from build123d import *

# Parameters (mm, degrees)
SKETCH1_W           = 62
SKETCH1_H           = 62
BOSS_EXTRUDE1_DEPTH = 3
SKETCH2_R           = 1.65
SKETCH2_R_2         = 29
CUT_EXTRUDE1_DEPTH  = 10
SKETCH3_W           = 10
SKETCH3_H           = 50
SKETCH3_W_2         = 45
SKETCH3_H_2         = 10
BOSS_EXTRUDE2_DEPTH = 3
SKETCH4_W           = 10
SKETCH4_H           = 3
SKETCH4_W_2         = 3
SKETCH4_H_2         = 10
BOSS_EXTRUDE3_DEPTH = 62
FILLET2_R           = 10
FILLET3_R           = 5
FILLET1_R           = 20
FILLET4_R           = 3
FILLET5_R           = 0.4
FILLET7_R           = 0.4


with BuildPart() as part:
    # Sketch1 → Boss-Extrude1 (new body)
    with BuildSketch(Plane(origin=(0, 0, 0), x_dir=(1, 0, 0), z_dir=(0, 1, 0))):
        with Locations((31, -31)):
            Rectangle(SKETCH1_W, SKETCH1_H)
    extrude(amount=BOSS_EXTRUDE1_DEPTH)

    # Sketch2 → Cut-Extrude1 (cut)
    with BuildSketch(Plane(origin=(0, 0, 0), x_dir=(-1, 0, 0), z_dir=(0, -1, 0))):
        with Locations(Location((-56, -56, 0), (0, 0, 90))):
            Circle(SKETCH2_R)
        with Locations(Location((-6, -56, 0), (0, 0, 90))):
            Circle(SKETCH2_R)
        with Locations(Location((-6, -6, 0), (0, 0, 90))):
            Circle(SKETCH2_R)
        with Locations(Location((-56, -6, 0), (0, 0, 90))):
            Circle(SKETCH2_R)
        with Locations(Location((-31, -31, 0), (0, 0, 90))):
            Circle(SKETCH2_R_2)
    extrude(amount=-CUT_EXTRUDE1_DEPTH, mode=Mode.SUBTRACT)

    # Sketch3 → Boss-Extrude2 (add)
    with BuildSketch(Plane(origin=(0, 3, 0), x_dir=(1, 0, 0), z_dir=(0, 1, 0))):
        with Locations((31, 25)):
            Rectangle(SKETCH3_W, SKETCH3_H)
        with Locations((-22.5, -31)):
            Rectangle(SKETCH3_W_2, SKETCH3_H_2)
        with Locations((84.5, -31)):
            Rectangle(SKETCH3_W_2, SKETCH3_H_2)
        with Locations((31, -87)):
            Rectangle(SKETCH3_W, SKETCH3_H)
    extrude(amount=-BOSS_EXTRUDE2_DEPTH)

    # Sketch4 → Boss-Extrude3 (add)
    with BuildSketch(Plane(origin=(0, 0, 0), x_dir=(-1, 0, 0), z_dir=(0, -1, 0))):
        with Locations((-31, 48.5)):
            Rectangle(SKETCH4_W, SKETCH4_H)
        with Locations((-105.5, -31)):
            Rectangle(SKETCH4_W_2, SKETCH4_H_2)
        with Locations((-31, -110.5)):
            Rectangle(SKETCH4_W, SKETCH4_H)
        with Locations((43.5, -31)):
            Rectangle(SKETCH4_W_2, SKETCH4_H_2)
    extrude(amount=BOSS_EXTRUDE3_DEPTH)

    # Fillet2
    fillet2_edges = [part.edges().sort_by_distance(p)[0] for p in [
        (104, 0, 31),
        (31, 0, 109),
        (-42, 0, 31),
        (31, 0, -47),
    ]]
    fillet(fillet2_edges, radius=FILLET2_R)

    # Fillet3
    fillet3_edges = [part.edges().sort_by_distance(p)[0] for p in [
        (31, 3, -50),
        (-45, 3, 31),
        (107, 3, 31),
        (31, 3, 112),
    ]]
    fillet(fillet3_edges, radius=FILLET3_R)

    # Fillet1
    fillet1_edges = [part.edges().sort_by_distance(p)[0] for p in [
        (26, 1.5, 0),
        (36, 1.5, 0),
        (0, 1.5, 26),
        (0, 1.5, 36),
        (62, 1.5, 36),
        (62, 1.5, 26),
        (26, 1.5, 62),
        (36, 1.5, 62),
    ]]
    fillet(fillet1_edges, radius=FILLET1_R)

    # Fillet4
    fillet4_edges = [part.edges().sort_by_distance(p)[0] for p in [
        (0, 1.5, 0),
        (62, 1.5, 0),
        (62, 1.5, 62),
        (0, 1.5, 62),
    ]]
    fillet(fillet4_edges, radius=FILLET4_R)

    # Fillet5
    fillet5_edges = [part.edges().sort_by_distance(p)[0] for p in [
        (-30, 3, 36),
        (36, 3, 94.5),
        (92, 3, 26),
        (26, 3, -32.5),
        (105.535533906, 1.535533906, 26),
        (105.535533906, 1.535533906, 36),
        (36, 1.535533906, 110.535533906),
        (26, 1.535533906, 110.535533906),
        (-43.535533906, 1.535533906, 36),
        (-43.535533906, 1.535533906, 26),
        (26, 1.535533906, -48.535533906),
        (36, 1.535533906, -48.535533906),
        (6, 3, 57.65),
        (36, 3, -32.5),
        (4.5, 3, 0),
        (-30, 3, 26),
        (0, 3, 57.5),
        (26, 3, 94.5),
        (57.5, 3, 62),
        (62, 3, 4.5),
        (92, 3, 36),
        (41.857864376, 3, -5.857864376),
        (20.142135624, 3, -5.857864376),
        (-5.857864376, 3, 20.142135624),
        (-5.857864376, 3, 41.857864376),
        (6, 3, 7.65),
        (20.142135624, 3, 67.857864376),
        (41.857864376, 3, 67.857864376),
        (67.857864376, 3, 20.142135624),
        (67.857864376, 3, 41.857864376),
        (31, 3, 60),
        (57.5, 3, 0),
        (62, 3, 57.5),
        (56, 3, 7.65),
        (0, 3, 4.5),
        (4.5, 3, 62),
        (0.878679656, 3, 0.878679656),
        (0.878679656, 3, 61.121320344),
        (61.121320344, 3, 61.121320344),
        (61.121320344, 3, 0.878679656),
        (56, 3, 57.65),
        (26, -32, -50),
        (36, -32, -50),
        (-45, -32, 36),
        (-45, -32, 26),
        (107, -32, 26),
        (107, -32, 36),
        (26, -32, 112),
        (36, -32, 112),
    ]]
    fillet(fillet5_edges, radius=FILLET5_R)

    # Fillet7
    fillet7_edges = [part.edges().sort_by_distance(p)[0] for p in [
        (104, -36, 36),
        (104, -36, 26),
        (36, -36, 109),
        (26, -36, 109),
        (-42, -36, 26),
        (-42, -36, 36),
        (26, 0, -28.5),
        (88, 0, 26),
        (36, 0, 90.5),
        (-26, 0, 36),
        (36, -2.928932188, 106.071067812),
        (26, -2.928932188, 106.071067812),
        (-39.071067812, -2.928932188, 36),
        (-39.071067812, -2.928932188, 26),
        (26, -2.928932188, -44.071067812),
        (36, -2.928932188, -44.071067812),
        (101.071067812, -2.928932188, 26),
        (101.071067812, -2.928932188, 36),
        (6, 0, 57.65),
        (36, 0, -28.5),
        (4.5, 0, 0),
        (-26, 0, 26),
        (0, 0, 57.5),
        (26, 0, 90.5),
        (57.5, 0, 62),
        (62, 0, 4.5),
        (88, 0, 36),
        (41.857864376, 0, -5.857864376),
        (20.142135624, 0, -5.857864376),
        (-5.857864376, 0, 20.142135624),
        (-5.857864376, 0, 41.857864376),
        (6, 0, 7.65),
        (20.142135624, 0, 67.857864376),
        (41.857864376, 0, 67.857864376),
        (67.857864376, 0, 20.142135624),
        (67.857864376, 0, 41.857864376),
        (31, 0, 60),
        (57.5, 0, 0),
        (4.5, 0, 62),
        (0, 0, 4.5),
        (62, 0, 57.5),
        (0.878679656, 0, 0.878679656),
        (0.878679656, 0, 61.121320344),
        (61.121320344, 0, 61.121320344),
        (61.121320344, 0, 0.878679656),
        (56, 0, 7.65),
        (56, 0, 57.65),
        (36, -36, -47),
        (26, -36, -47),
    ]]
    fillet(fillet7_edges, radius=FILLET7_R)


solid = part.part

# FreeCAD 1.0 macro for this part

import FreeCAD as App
import Part
import Sketcher
from FreeCAD import Vector
Q = App.Units.Quantity


def edges_at(feature, points):
    """Names of the edges that pass closest to the given points."""
    edges = feature.Shape.Edges
    near = lambda p: min(range(len(edges)), key=lambda i: edges[i].distToShape(Part.Vertex(*p))[0])
    return sorted({f"Edge{near(p) + 1}" for p in points})

doc = App.newDocument("Part")
body = doc.addObject("PartDesign::Body", "Body")

sketch1 = doc.addObject("Sketcher::SketchObject", "Sketch")
body.addObject(sketch1)
sketch1.AttachmentSupport = (doc.XZ_Plane, [""])
sketch1.MapMode = "FlatFace"
sketch1.addGeometry(Part.LineSegment(Vector(0, 0, 0), Vector(0, 62, 0)), False)
sketch1.addGeometry(Part.LineSegment(Vector(0, 62, 0), Vector(62, 62, 0)), False)
sketch1.addGeometry(Part.LineSegment(Vector(62, 62, 0), Vector(62, 0, 0)), False)
sketch1.addGeometry(Part.LineSegment(Vector(62, 0, 0), Vector(0, 0, 0)), False)
sketch1.addConstraint(Sketcher.Constraint("Coincident", 0, 2, 1, 1))
sketch1.addConstraint(Sketcher.Constraint("Coincident", 1, 2, 2, 1))
sketch1.addConstraint(Sketcher.Constraint("Coincident", 2, 2, 3, 1))
sketch1.addConstraint(Sketcher.Constraint("Coincident", 3, 2, 0, 1))
sketch1.addConstraint(Sketcher.Constraint("Vertical", 0))
sketch1.addConstraint(Sketcher.Constraint("Horizontal", 1))
sketch1.addConstraint(Sketcher.Constraint("Vertical", 2))
sketch1.addConstraint(Sketcher.Constraint("Horizontal", 3))
sketch1.addConstraint(Sketcher.Constraint("Coincident", 3, 2, -1, 1))
sketch1.addConstraint(Sketcher.Constraint("Equal", 3, 0))
sketch1.addConstraint(Sketcher.Constraint("DistanceX", 1, 1, 1, 2, Q("62 mm")))
pad1 = doc.addObject("PartDesign::Pad", "Pad")
body.addObject(pad1)
pad1.Profile = sketch1
pad1.Length = 3
pad1.Reversed = True

sketch2 = doc.addObject("Sketcher::SketchObject", "Sketch001")
body.addObject(sketch2)
sketch2.AttachmentSupport = (doc.XZ_Plane, [""])
sketch2.MapMode = "FlatFace"
sketch2.addGeometry(Part.Circle(Vector(56, 56, 0), Vector(0, 0, 1), 1.6), False)
sketch2.addGeometry(Part.Circle(Vector(6, 56, 0), Vector(0, 0, 1), 1.6), False)
sketch2.addGeometry(Part.Circle(Vector(6, 6, 0), Vector(0, 0, 1), 1.6), False)
sketch2.addGeometry(Part.Circle(Vector(56, 6, 0), Vector(0, 0, 1), 1.6), False)
sketch2.addGeometry(Part.Circle(Vector(31, 31, 0), Vector(0, 0, 1), 29), False)
sketch2.addConstraint(Sketcher.Constraint("Equal", 0, 1))
sketch2.addConstraint(Sketcher.Constraint("Equal", 1, 2))
sketch2.addConstraint(Sketcher.Constraint("Equal", 2, 3))
sketch2.addConstraint(Sketcher.Constraint("Horizontal", 0, 3, 1, 3))
sketch2.addConstraint(Sketcher.Constraint("Horizontal", 2, 3, 3, 3))
sketch2.addConstraint(Sketcher.Constraint("Vertical", 1, 3, 2, 3))
sketch2.addConstraint(Sketcher.Constraint("Vertical", 0, 3, 3, 3))
sketch2.addConstraint(Sketcher.Constraint("Diameter", 4, Q("58 mm")))
sketch2.addConstraint(Sketcher.Constraint("Diameter", 0, Q("3.3 mm")))
sketch2.addConstraint(Sketcher.Constraint("DistanceX", -1, 1, 0, 3, Q("56 mm")))
sketch2.addConstraint(Sketcher.Constraint("DistanceY", -1, 1, 0, 3, Q("56 mm")))
sketch2.addConstraint(Sketcher.Constraint("DistanceX", -1, 1, 1, 3, Q("6 mm")))
sketch2.addConstraint(Sketcher.Constraint("DistanceY", -1, 1, 2, 3, Q("6 mm")))
sketch2.addConstraint(Sketcher.Constraint("DistanceX", -1, 1, 4, 3, Q("31 mm")))
sketch2.addConstraint(Sketcher.Constraint("DistanceY", -1, 1, 4, 3, Q("31 mm")))
pocket1 = doc.addObject("PartDesign::Pocket", "Pocket")
body.addObject(pocket1)
pocket1.Profile = sketch2
pocket1.Length = 10

sketch3 = doc.addObject("Sketcher::SketchObject", "Sketch002")
body.addObject(sketch3)
sketch3.AttachmentSupport = (doc.XZ_Plane, [""])
sketch3.MapMode = "FlatFace"
sketch3.AttachmentOffset = App.Placement(Vector(0, 0, -3), App.Rotation())
sketch3.addGeometry(Part.LineSegment(Vector(26, -50, 0), Vector(26, 0, 0)), False)
sketch3.addGeometry(Part.LineSegment(Vector(26, 0, 0), Vector(36, 0, 0)), False)
sketch3.addGeometry(Part.LineSegment(Vector(36, 0, 0), Vector(36, -50, 0)), False)
sketch3.addGeometry(Part.LineSegment(Vector(36, -50, 0), Vector(26, -50, 0)), False)
sketch3.addGeometry(Part.LineSegment(Vector(-45, 26, 0), Vector(-45, 36, 0)), False)
sketch3.addGeometry(Part.LineSegment(Vector(-45, 36, 0), Vector(0, 36, 0)), False)
sketch3.addGeometry(Part.LineSegment(Vector(0, 36, 0), Vector(0, 26, 0)), False)
sketch3.addGeometry(Part.LineSegment(Vector(0, 26, 0), Vector(-45, 26, 0)), False)
sketch3.addGeometry(Part.LineSegment(Vector(62, 26, 0), Vector(62, 36, 0)), False)
sketch3.addGeometry(Part.LineSegment(Vector(62, 36, 0), Vector(107, 36, 0)), False)
sketch3.addGeometry(Part.LineSegment(Vector(107, 36, 0), Vector(107, 26, 0)), False)
sketch3.addGeometry(Part.LineSegment(Vector(107, 26, 0), Vector(62, 26, 0)), False)
sketch3.addGeometry(Part.LineSegment(Vector(26, 62, 0), Vector(26, 112, 0)), False)
sketch3.addGeometry(Part.LineSegment(Vector(26, 112, 0), Vector(36, 112, 0)), False)
sketch3.addGeometry(Part.LineSegment(Vector(36, 112, 0), Vector(36, 62, 0)), False)
sketch3.addGeometry(Part.LineSegment(Vector(36, 62, 0), Vector(26, 62, 0)), False)
sketch3.addConstraint(Sketcher.Constraint("Coincident", 0, 2, 1, 1))
sketch3.addConstraint(Sketcher.Constraint("Coincident", 1, 2, 2, 1))
sketch3.addConstraint(Sketcher.Constraint("Coincident", 2, 2, 3, 1))
sketch3.addConstraint(Sketcher.Constraint("Coincident", 3, 2, 0, 1))
sketch3.addConstraint(Sketcher.Constraint("Coincident", 4, 2, 5, 1))
sketch3.addConstraint(Sketcher.Constraint("Coincident", 5, 2, 6, 1))
sketch3.addConstraint(Sketcher.Constraint("Coincident", 6, 2, 7, 1))
sketch3.addConstraint(Sketcher.Constraint("Coincident", 7, 2, 4, 1))
sketch3.addConstraint(Sketcher.Constraint("Coincident", 8, 2, 9, 1))
sketch3.addConstraint(Sketcher.Constraint("Coincident", 9, 2, 10, 1))
sketch3.addConstraint(Sketcher.Constraint("Coincident", 10, 2, 11, 1))
sketch3.addConstraint(Sketcher.Constraint("Coincident", 11, 2, 8, 1))
sketch3.addConstraint(Sketcher.Constraint("Coincident", 12, 2, 13, 1))
sketch3.addConstraint(Sketcher.Constraint("Coincident", 13, 2, 14, 1))
sketch3.addConstraint(Sketcher.Constraint("Coincident", 14, 2, 15, 1))
sketch3.addConstraint(Sketcher.Constraint("Coincident", 15, 2, 12, 1))
sketch3.addConstraint(Sketcher.Constraint("Vertical", 0))
sketch3.addConstraint(Sketcher.Constraint("Horizontal", 1))
sketch3.addConstraint(Sketcher.Constraint("Vertical", 2))
sketch3.addConstraint(Sketcher.Constraint("Horizontal", 3))
sketch3.addConstraint(Sketcher.Constraint("Vertical", 4))
sketch3.addConstraint(Sketcher.Constraint("Horizontal", 5))
sketch3.addConstraint(Sketcher.Constraint("Vertical", 6))
sketch3.addConstraint(Sketcher.Constraint("Horizontal", 7))
sketch3.addConstraint(Sketcher.Constraint("Vertical", 8))
sketch3.addConstraint(Sketcher.Constraint("Horizontal", 9))
sketch3.addConstraint(Sketcher.Constraint("Vertical", 10))
sketch3.addConstraint(Sketcher.Constraint("Horizontal", 11))
sketch3.addConstraint(Sketcher.Constraint("Vertical", 12))
sketch3.addConstraint(Sketcher.Constraint("Horizontal", 13))
sketch3.addConstraint(Sketcher.Constraint("Vertical", 14))
sketch3.addConstraint(Sketcher.Constraint("Horizontal", 15))
sketch3.addConstraint(Sketcher.Constraint("PointOnObject", 0, 2, -1))
sketch3.addConstraint(Sketcher.Constraint("PointOnObject", 5, 2, -2))
sketch3.addConstraint(Sketcher.Constraint("Horizontal", 5, 2, 8, 2))
sketch3.addConstraint(Sketcher.Constraint("Horizontal", 7, 2, 10, 2))
sketch3.addConstraint(Sketcher.Constraint("Vertical", 3, 2, 12, 2))
sketch3.addConstraint(Sketcher.Constraint("Vertical", 2, 2, 13, 2))
sketch3.addConstraint(Sketcher.Constraint("Equal", 7, 9))
sketch3.addConstraint(Sketcher.Constraint("Equal", 15, 4))
sketch3.addConstraint(Sketcher.Constraint("Equal", 2, 12))
sketch3.addConstraint(Sketcher.Constraint("DistanceX", 1, 1, 1, 2, Q("10 mm")))
sketch3.addConstraint(Sketcher.Constraint("DistanceX", 5, 1, 5, 2, Q("45 mm")))
sketch3.addConstraint(Sketcher.Constraint("DistanceY", 0, 1, 0, 2, Q("50 mm")))
sketch3.addConstraint(Sketcher.Constraint("DistanceX", -1, 1, 0, 2, Q("26 mm")))
sketch3.addConstraint(Sketcher.Constraint("DistanceY", -1, 1, 4, 2, Q("36 mm")))
sketch3.addConstraint(Sketcher.Constraint("DistanceX", -1, 1, 8, 2, Q("62 mm")))
sketch3.addConstraint(Sketcher.Constraint("DistanceY", -1, 1, 12, 2, Q("112 mm")))
pad2 = doc.addObject("PartDesign::Pad", "Pad001")
body.addObject(pad2)
pad2.Profile = sketch3
pad2.Length = 3

sketch4 = doc.addObject("Sketcher::SketchObject", "Sketch003")
body.addObject(sketch4)
sketch4.AttachmentSupport = (doc.XZ_Plane, [""])
sketch4.MapMode = "FlatFace"
sketch4.addGeometry(Part.LineSegment(Vector(36, -50, 0), Vector(36, -47, 0)), False)
sketch4.addGeometry(Part.LineSegment(Vector(36, -47, 0), Vector(26, -47, 0)), False)
sketch4.addGeometry(Part.LineSegment(Vector(26, -47, 0), Vector(26, -50, 0)), False)
sketch4.addGeometry(Part.LineSegment(Vector(26, -50, 0), Vector(36, -50, 0)), False)
sketch4.addGeometry(Part.LineSegment(Vector(107, 26, 0), Vector(107, 36, 0)), False)
sketch4.addGeometry(Part.LineSegment(Vector(107, 36, 0), Vector(104, 36, 0)), False)
sketch4.addGeometry(Part.LineSegment(Vector(104, 36, 0), Vector(104, 26, 0)), False)
sketch4.addGeometry(Part.LineSegment(Vector(104, 26, 0), Vector(107, 26, 0)), False)
sketch4.addGeometry(Part.LineSegment(Vector(36, 109, 0), Vector(36, 112, 0)), False)
sketch4.addGeometry(Part.LineSegment(Vector(36, 112, 0), Vector(26, 112, 0)), False)
sketch4.addGeometry(Part.LineSegment(Vector(26, 112, 0), Vector(26, 109, 0)), False)
sketch4.addGeometry(Part.LineSegment(Vector(26, 109, 0), Vector(36, 109, 0)), False)
sketch4.addGeometry(Part.LineSegment(Vector(-42, 26, 0), Vector(-42, 36, 0)), False)
sketch4.addGeometry(Part.LineSegment(Vector(-42, 36, 0), Vector(-45, 36, 0)), False)
sketch4.addGeometry(Part.LineSegment(Vector(-45, 36, 0), Vector(-45, 26, 0)), False)
sketch4.addGeometry(Part.LineSegment(Vector(-45, 26, 0), Vector(-42, 26, 0)), False)
sketch4.addConstraint(Sketcher.Constraint("Coincident", 0, 2, 1, 1))
sketch4.addConstraint(Sketcher.Constraint("Coincident", 1, 2, 2, 1))
sketch4.addConstraint(Sketcher.Constraint("Coincident", 2, 2, 3, 1))
sketch4.addConstraint(Sketcher.Constraint("Coincident", 3, 2, 0, 1))
sketch4.addConstraint(Sketcher.Constraint("Coincident", 4, 2, 5, 1))
sketch4.addConstraint(Sketcher.Constraint("Coincident", 5, 2, 6, 1))
sketch4.addConstraint(Sketcher.Constraint("Coincident", 6, 2, 7, 1))
sketch4.addConstraint(Sketcher.Constraint("Coincident", 7, 2, 4, 1))
sketch4.addConstraint(Sketcher.Constraint("Coincident", 8, 2, 9, 1))
sketch4.addConstraint(Sketcher.Constraint("Coincident", 9, 2, 10, 1))
sketch4.addConstraint(Sketcher.Constraint("Coincident", 10, 2, 11, 1))
sketch4.addConstraint(Sketcher.Constraint("Coincident", 11, 2, 8, 1))
sketch4.addConstraint(Sketcher.Constraint("Coincident", 12, 2, 13, 1))
sketch4.addConstraint(Sketcher.Constraint("Coincident", 13, 2, 14, 1))
sketch4.addConstraint(Sketcher.Constraint("Coincident", 14, 2, 15, 1))
sketch4.addConstraint(Sketcher.Constraint("Coincident", 15, 2, 12, 1))
sketch4.addConstraint(Sketcher.Constraint("Vertical", 0))
sketch4.addConstraint(Sketcher.Constraint("Horizontal", 1))
sketch4.addConstraint(Sketcher.Constraint("Vertical", 2))
sketch4.addConstraint(Sketcher.Constraint("Horizontal", 3))
sketch4.addConstraint(Sketcher.Constraint("Vertical", 4))
sketch4.addConstraint(Sketcher.Constraint("Horizontal", 5))
sketch4.addConstraint(Sketcher.Constraint("Vertical", 6))
sketch4.addConstraint(Sketcher.Constraint("Horizontal", 7))
sketch4.addConstraint(Sketcher.Constraint("Vertical", 8))
sketch4.addConstraint(Sketcher.Constraint("Horizontal", 9))
sketch4.addConstraint(Sketcher.Constraint("Vertical", 10))
sketch4.addConstraint(Sketcher.Constraint("Horizontal", 11))
sketch4.addConstraint(Sketcher.Constraint("Vertical", 12))
sketch4.addConstraint(Sketcher.Constraint("Horizontal", 13))
sketch4.addConstraint(Sketcher.Constraint("Vertical", 14))
sketch4.addConstraint(Sketcher.Constraint("Horizontal", 15))
sketch4.addConstraint(Sketcher.Constraint("Horizontal", 5, 2, 12, 2))
sketch4.addConstraint(Sketcher.Constraint("Horizontal", 7, 2, 14, 2))
sketch4.addConstraint(Sketcher.Constraint("Vertical", 3, 2, 8, 2))
sketch4.addConstraint(Sketcher.Constraint("Vertical", 2, 2, 9, 2))
sketch4.addConstraint(Sketcher.Constraint("Equal", 7, 13))
sketch4.addConstraint(Sketcher.Constraint("Equal", 15, 0))
sketch4.addConstraint(Sketcher.Constraint("Equal", 11, 4))
sketch4.addConstraint(Sketcher.Constraint("Equal", 2, 8))
sketch4.addConstraint(Sketcher.Constraint("DistanceX", 1, 2, 1, 1, Q("10 mm")))
sketch4.addConstraint(Sketcher.Constraint("DistanceX", 5, 2, 5, 1, Q("3 mm")))
sketch4.addConstraint(Sketcher.Constraint("DistanceX", -1, 1, 0, 2, Q("36 mm")))
sketch4.addConstraint(Sketcher.Constraint("DistanceY", 0, 2, -1, 1, Q("47 mm")))
sketch4.addConstraint(Sketcher.Constraint("DistanceX", -1, 1, 4, 2, Q("107 mm")))
sketch4.addConstraint(Sketcher.Constraint("DistanceY", -1, 1, 4, 2, Q("36 mm")))
sketch4.addConstraint(Sketcher.Constraint("DistanceY", -1, 1, 8, 2, Q("112 mm")))
sketch4.addConstraint(Sketcher.Constraint("DistanceX", 12, 2, -1, 1, Q("42 mm")))
pad3 = doc.addObject("PartDesign::Pad", "Pad002")
body.addObject(pad3)
pad3.Profile = sketch4
pad3.Length = 62
doc.recompute()

fillet = doc.addObject("PartDesign::Fillet", "Fillet")
body.addObject(fillet)
fillet.Base = (pad3, edges_at(pad3, [
    (104, 0, 31),
    (31, 0, 109),
    (-42, 0, 31),
    (31, 0, -47),
]))
fillet.Radius = 10
doc.recompute()

fillet2 = doc.addObject("PartDesign::Fillet", "Fillet001")
body.addObject(fillet2)
fillet2.Base = (fillet, edges_at(fillet, [
    (31, 3, -50),
    (-45, 3, 31),
    (107, 3, 31),
    (31, 3, 112),
]))
fillet2.Radius = 5
doc.recompute()

fillet3 = doc.addObject("PartDesign::Fillet", "Fillet002")
body.addObject(fillet3)
fillet3.Base = (fillet2, edges_at(fillet2, [
    (26, 1.5, 0),
    (36, 1.5, 0),
    (0, 1.5, 26),
    (0, 1.5, 36),
    (62, 1.5, 36),
    (62, 1.5, 26),
    (26, 1.5, 62),
    (36, 1.5, 62),
]))
fillet3.Radius = 20
doc.recompute()

fillet4 = doc.addObject("PartDesign::Fillet", "Fillet003")
body.addObject(fillet4)
fillet4.Base = (fillet3, edges_at(fillet3, [
    (0, 1.5, 0),
    (62, 1.5, 0),
    (62, 1.5, 62),
    (0, 1.5, 62),
]))
fillet4.Radius = 3
doc.recompute()

fillet5 = doc.addObject("PartDesign::Fillet", "Fillet004")
body.addObject(fillet5)
fillet5.Base = (fillet4, edges_at(fillet4, [
    (-30, 3, 36),
    (36, 3, 94.5),
    (92, 3, 26),
    (26, 3, -32.5),
    (105.536, 1.536, 26),
    (105.536, 1.536, 36),
    (36, 1.536, 110.536),
    (26, 1.536, 110.536),
    (-43.536, 1.536, 36),
    (-43.536, 1.536, 26),
    (26, 1.536, -48.536),
    (36, 1.536, -48.536),
    (6, 3, 57.65),
    (36, 3, -32.5),
    (4.5, 3, 0),
    (-30, 3, 26),
    (0, 3, 57.5),
    (26, 3, 94.5),
    (57.5, 3, 62),
    (62, 3, 4.5),
    (92, 3, 36),
    (41.858, 3, -5.858),
    (20.142, 3, -5.858),
    (-5.858, 3, 20.142),
    (-5.858, 3, 41.858),
    (6, 3, 7.65),
    (20.142, 3, 67.858),
    (41.858, 3, 67.858),
    (67.858, 3, 20.142),
    (67.858, 3, 41.858),
    (31, 3, 60),
    (57.5, 3, 0),
    (62, 3, 57.5),
    (56, 3, 7.65),
    (0, 3, 4.5),
    (4.5, 3, 62),
    (0.879, 3, 0.879),
    (0.879, 3, 61.121),
    (61.121, 3, 61.121),
    (61.121, 3, 0.879),
    (56, 3, 57.65),
    (26, -32, -50),
    (36, -32, -50),
    (-45, -32, 36),
    (-45, -32, 26),
    (107, -32, 26),
    (107, -32, 36),
    (26, -32, 112),
    (36, -32, 112),
]))
fillet5.Radius = 0.4
doc.recompute()

fillet6 = doc.addObject("PartDesign::Fillet", "Fillet005")
body.addObject(fillet6)
fillet6.Base = (fillet5, edges_at(fillet5, [
    (104, -36, 36),
    (104, -36, 26),
    (36, -36, 109),
    (26, -36, 109),
    (-42, -36, 26),
    (-42, -36, 36),
    (26, 0, -28.5),
    (88, 0, 26),
    (36, 0, 90.5),
    (-26, 0, 36),
    (36, -2.929, 106.071),
    (26, -2.929, 106.071),
    (-39.071, -2.929, 36),
    (-39.071, -2.929, 26),
    (26, -2.929, -44.071),
    (36, -2.929, -44.071),
    (101.071, -2.929, 26),
    (101.071, -2.929, 36),
    (6, 0, 57.65),
    (36, 0, -28.5),
    (4.5, 0, 0),
    (-26, 0, 26),
    (0, 0, 57.5),
    (26, 0, 90.5),
    (57.5, 0, 62),
    (62, 0, 4.5),
    (88, 0, 36),
    (41.858, 0, -5.858),
    (20.142, 0, -5.858),
    (-5.858, 0, 20.142),
    (-5.858, 0, 41.858),
    (6, 0, 7.65),
    (20.142, 0, 67.858),
    (41.858, 0, 67.858),
    (67.858, 0, 20.142),
    (67.858, 0, 41.858),
    (31, 0, 60),
    (57.5, 0, 0),
    (4.5, 0, 62),
    (0, 0, 4.5),
    (62, 0, 57.5),
    (0.879, 0, 0.879),
    (0.879, 0, 61.121),
    (61.121, 0, 61.121),
    (61.121, 0, 0.879),
    (56, 0, 7.65),
    (56, 0, 57.65),
    (36, -36, -47),
    (26, -36, -47),
]))
fillet6.Radius = 0.4

doc.recompute()
